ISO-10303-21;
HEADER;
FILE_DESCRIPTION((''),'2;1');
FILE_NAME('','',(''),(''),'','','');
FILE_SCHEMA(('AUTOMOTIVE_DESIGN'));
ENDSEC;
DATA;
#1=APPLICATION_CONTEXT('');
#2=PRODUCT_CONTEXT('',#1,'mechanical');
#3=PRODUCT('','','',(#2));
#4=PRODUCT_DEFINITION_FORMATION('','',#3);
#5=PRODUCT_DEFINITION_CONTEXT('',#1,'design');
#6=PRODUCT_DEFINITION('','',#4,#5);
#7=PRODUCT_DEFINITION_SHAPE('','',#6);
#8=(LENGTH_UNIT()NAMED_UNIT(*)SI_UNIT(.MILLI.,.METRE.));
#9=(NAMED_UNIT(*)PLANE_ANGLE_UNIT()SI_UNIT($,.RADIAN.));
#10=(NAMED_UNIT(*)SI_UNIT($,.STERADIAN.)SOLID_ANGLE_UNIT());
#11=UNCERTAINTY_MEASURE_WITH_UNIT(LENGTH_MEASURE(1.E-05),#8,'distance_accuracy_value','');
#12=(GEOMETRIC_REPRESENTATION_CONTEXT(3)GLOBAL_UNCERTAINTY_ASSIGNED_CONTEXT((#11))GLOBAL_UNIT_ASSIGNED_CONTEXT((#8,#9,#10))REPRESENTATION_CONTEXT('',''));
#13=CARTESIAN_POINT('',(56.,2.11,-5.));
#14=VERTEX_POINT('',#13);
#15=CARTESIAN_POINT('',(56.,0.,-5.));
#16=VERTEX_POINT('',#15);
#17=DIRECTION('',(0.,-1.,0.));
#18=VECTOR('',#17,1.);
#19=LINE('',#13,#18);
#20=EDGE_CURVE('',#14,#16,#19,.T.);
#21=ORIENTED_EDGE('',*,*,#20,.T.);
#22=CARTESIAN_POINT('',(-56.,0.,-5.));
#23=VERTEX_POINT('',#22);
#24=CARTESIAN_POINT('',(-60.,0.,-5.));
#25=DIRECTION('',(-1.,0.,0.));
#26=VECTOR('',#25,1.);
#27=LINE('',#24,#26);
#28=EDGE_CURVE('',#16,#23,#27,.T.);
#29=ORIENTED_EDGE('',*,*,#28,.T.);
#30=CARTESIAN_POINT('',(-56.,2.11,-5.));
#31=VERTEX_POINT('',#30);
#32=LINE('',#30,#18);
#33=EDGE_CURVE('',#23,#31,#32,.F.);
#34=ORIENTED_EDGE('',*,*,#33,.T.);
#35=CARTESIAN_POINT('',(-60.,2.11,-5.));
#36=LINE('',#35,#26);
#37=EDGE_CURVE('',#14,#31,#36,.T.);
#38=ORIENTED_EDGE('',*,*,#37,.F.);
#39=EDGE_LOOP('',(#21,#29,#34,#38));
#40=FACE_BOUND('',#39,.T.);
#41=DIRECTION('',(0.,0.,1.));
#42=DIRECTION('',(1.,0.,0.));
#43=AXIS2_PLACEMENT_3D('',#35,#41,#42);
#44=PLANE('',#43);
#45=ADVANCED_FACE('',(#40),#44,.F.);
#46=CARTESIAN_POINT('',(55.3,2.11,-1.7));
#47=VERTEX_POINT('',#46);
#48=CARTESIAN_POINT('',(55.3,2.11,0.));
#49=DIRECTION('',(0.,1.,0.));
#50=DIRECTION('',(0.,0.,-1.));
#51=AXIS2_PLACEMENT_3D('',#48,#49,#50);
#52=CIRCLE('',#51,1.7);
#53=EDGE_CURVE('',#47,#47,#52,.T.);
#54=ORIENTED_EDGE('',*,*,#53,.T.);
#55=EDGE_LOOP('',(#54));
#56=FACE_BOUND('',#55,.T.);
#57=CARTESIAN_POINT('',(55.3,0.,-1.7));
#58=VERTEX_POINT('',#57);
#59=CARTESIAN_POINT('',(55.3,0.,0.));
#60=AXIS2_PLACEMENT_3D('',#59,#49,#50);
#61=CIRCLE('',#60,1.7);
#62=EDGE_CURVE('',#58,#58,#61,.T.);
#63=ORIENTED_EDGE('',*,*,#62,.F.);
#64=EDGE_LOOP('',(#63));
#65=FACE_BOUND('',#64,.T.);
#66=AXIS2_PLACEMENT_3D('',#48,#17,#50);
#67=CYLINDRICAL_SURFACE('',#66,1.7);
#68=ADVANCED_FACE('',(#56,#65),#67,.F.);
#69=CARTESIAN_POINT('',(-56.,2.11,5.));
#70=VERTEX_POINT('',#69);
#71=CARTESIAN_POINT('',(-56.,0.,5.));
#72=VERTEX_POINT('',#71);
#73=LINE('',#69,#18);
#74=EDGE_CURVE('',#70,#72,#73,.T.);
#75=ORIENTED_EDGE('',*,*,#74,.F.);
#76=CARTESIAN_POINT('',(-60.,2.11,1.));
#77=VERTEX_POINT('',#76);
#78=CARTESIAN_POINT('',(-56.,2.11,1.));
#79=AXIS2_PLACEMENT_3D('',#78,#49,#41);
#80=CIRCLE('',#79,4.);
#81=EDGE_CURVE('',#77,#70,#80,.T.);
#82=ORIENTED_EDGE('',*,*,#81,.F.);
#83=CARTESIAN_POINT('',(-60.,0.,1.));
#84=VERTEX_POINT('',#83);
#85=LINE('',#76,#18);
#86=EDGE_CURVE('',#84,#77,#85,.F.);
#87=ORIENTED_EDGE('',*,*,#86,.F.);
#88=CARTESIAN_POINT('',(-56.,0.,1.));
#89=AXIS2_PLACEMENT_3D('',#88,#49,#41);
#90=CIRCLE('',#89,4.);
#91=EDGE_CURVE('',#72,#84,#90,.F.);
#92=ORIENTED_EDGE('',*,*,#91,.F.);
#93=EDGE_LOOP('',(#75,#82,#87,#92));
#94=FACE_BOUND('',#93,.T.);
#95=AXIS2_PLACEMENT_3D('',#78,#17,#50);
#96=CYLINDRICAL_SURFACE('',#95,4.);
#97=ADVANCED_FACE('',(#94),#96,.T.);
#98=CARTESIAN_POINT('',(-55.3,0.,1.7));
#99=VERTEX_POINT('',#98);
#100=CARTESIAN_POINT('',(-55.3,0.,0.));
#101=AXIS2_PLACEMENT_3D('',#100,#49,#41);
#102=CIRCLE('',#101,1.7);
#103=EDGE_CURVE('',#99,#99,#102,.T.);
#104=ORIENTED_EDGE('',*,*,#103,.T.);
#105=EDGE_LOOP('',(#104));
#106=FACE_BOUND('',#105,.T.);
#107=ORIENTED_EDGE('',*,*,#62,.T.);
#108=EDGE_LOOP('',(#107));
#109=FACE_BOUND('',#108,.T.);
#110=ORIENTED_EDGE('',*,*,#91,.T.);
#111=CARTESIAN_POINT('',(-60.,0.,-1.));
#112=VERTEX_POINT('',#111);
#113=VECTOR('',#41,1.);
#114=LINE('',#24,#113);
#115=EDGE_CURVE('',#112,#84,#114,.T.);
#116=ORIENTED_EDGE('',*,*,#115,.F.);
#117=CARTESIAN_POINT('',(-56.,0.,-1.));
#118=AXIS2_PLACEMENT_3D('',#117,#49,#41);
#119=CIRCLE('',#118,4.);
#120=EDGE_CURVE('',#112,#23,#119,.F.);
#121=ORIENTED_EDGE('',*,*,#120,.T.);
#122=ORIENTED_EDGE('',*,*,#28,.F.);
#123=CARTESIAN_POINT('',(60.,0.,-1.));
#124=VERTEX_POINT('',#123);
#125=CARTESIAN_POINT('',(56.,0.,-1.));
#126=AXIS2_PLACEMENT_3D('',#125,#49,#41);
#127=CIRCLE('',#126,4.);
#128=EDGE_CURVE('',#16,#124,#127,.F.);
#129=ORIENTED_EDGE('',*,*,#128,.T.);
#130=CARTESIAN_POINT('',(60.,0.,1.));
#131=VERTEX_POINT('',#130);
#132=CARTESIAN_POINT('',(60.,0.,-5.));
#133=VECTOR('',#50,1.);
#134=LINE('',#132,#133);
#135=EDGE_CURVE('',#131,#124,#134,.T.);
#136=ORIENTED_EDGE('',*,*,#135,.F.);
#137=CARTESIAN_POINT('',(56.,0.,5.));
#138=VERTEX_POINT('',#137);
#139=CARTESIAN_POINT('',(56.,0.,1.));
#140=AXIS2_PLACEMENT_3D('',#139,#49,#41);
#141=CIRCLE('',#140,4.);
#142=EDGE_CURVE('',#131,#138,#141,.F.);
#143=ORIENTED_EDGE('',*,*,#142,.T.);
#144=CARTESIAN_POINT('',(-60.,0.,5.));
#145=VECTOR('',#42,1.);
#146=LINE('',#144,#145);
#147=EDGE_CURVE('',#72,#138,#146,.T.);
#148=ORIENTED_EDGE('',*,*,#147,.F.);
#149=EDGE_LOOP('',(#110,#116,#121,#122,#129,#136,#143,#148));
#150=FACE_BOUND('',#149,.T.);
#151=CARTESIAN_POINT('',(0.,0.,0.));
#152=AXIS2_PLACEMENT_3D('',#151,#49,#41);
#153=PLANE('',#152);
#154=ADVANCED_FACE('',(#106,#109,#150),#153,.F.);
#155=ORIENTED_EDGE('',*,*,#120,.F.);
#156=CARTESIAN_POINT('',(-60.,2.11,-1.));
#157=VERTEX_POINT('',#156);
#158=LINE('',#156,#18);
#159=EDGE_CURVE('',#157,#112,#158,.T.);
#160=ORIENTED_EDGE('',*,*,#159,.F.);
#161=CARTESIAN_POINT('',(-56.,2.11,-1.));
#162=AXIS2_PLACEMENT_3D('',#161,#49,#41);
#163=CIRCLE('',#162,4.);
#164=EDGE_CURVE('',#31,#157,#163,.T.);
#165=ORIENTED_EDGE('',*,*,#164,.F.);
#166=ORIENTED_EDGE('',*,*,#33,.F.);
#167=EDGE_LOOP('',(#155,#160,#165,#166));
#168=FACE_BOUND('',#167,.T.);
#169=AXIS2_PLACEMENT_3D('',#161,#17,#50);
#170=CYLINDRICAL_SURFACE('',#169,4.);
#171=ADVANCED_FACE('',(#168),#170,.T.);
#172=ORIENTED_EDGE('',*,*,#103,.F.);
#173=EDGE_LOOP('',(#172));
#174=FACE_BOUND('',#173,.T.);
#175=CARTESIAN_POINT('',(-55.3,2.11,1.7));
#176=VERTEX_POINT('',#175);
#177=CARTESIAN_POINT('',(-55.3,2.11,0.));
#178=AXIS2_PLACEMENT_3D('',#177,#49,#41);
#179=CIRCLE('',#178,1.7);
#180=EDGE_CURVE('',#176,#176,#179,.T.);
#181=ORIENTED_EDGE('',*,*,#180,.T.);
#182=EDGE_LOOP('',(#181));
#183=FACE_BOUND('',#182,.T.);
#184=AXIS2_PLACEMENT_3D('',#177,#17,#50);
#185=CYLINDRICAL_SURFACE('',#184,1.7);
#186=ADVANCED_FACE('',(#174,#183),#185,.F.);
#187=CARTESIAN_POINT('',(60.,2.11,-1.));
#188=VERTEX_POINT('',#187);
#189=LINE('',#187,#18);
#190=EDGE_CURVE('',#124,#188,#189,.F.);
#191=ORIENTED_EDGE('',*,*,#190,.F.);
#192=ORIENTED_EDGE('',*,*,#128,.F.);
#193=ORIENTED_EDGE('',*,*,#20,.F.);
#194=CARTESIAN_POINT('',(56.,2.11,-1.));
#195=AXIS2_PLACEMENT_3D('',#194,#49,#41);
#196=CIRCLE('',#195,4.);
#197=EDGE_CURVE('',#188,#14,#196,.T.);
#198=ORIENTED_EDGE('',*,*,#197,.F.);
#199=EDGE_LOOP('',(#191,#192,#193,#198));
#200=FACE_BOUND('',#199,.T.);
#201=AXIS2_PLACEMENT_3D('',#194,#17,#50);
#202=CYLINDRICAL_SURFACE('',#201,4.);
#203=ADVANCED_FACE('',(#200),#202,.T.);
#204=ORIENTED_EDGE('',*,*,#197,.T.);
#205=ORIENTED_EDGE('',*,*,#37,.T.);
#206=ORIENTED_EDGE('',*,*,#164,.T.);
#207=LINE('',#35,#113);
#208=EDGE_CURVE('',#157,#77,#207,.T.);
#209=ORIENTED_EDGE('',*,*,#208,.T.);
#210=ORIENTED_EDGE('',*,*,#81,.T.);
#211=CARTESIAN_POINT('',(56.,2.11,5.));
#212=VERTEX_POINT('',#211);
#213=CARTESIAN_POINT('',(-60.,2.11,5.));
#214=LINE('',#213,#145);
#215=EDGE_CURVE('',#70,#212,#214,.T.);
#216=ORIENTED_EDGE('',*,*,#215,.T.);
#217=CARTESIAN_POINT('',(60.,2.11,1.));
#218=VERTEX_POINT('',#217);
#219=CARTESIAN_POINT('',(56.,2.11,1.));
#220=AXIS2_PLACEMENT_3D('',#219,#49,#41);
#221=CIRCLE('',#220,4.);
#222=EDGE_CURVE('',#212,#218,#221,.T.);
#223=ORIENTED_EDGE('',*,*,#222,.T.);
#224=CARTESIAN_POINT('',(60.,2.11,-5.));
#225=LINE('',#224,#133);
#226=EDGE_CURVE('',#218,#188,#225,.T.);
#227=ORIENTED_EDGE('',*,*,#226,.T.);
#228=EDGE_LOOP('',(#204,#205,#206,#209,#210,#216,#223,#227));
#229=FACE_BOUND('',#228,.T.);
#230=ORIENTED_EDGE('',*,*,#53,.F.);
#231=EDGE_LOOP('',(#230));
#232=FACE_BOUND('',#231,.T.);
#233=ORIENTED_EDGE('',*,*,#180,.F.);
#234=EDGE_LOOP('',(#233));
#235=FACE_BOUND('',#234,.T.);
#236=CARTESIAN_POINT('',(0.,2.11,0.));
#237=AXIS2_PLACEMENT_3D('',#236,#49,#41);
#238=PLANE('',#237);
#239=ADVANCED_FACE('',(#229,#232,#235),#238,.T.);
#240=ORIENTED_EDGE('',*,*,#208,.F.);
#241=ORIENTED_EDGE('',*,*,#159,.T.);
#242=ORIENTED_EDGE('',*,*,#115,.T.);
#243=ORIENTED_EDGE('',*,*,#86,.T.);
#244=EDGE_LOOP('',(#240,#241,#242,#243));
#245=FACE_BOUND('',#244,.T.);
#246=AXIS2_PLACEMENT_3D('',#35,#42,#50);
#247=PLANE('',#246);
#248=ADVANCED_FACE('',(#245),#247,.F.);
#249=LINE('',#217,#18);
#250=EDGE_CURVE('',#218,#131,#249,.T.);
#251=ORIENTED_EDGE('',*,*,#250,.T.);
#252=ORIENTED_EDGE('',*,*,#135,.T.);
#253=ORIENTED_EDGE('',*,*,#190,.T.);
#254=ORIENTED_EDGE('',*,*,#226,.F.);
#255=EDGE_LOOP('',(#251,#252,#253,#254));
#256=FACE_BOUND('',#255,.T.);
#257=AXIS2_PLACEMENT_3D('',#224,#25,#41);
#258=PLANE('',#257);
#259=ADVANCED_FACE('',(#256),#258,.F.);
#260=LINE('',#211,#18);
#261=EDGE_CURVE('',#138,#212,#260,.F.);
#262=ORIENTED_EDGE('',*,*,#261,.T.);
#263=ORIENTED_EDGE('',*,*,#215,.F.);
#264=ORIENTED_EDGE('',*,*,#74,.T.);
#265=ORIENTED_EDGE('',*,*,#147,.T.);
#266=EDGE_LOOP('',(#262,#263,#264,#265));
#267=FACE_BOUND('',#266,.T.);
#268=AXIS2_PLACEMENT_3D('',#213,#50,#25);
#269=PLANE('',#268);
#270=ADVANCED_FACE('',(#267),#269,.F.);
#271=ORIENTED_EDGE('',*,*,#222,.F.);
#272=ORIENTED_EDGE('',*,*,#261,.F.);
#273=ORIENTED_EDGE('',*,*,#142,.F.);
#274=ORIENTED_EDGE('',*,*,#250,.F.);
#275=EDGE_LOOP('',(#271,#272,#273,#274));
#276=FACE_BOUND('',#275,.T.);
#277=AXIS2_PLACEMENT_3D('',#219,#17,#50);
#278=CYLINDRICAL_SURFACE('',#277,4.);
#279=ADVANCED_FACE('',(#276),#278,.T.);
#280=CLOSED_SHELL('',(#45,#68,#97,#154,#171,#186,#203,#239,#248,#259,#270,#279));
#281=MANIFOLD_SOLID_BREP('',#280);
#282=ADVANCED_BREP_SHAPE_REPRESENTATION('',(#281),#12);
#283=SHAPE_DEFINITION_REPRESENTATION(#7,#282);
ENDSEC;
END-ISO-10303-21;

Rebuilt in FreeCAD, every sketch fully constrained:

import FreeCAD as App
import Part
import Sketcher


def edges_at(feature, points):
    """Names of the edges that pass closest to the given points."""
    edges = feature.Shape.Edges
    near = lambda p: min(range(len(edges)), key=lambda i: edges[i].distToShape(Part.Vertex(*p))[0])
    return sorted({f"Edge{near(p) + 1}" for p in points})


def add_polygon(sketch, points):
    """Adds a closed chain of lines whose ends are joined by coincident constraints."""
    first, n = sketch.GeometryCount, len(points)
    for a, b in zip(points, points[1:] + points[:1]):
        sketch.addGeometry(Part.LineSegment(App.Vector(*a, 0), App.Vector(*b, 0)), False)
    for i in range(n):
        sketch.addConstraint(Sketcher.Constraint("Coincident", first + i, 2, first + (i + 1) % n, 1))

doc = App.newDocument("Part")
body = doc.addObject("PartDesign::Body", "Body")

# Sketch on XZ plane
sketch1 = doc.addObject("Sketcher::SketchObject", "Sketch")
body.addObject(sketch1)
sketch1.AttachmentSupport = (doc.XZ_Plane, [""])
sketch1.MapMode = "FlatFace"
add_polygon(sketch1, [(-60, -5), (-60, 5), (60, 5), (60, -5)])  # lines 0-3
sketch1.addGeometry(Part.Circle(App.Vector(-55.3, 0, 0), App.Vector(0, 0, 1), 1.7), False)  # 4
sketch1.addGeometry(Part.Circle(App.Vector(55.3, 0, 0), App.Vector(0, 0, 1), 1.7), False)  # 5
sketch1.addConstraint([
    Sketcher.Constraint("Vertical", 0),
    Sketcher.Constraint("Horizontal", 1),
    Sketcher.Constraint("Vertical", 2),
    Sketcher.Constraint("Horizontal", 3),
    Sketcher.Constraint("Equal", 4, 5),
    Sketcher.Constraint("Symmetric", 4, 3, 5, 3, -1, 1),
    Sketcher.Constraint("Symmetric", 0, 2, 2, 2, -1, 1),
    Sketcher.Constraint("PointOnObject", 4, 3, -1),
    Sketcher.Constraint("Diameter", 4, 3.4),
    Sketcher.Constraint("DistanceX", 1, 1, 1, 2, 120.0),
    Sketcher.Constraint("DistanceY", 0, 1, 0, 2, 10.0),
    Sketcher.Constraint("DistanceX", 4, 3, -1, 1, 55.3),
])
pad1 = doc.addObject("PartDesign::Pad", "Pad")
body.addObject(pad1)
pad1.Profile = sketch1
pad1.Length = 2.11
pad1.Reversed = True
doc.recompute()

fillet = doc.addObject("PartDesign::Fillet", "Fillet")
body.addObject(fillet)
fillet.Base = (pad1, edges_at(pad1, [
    (60, 1.055, 5),
    (-60, 1.055, 5),
    (-60, 1.055, -5),
    (60, 1.055, -5),
]))
fillet.Radius = 4

doc.recompute()
